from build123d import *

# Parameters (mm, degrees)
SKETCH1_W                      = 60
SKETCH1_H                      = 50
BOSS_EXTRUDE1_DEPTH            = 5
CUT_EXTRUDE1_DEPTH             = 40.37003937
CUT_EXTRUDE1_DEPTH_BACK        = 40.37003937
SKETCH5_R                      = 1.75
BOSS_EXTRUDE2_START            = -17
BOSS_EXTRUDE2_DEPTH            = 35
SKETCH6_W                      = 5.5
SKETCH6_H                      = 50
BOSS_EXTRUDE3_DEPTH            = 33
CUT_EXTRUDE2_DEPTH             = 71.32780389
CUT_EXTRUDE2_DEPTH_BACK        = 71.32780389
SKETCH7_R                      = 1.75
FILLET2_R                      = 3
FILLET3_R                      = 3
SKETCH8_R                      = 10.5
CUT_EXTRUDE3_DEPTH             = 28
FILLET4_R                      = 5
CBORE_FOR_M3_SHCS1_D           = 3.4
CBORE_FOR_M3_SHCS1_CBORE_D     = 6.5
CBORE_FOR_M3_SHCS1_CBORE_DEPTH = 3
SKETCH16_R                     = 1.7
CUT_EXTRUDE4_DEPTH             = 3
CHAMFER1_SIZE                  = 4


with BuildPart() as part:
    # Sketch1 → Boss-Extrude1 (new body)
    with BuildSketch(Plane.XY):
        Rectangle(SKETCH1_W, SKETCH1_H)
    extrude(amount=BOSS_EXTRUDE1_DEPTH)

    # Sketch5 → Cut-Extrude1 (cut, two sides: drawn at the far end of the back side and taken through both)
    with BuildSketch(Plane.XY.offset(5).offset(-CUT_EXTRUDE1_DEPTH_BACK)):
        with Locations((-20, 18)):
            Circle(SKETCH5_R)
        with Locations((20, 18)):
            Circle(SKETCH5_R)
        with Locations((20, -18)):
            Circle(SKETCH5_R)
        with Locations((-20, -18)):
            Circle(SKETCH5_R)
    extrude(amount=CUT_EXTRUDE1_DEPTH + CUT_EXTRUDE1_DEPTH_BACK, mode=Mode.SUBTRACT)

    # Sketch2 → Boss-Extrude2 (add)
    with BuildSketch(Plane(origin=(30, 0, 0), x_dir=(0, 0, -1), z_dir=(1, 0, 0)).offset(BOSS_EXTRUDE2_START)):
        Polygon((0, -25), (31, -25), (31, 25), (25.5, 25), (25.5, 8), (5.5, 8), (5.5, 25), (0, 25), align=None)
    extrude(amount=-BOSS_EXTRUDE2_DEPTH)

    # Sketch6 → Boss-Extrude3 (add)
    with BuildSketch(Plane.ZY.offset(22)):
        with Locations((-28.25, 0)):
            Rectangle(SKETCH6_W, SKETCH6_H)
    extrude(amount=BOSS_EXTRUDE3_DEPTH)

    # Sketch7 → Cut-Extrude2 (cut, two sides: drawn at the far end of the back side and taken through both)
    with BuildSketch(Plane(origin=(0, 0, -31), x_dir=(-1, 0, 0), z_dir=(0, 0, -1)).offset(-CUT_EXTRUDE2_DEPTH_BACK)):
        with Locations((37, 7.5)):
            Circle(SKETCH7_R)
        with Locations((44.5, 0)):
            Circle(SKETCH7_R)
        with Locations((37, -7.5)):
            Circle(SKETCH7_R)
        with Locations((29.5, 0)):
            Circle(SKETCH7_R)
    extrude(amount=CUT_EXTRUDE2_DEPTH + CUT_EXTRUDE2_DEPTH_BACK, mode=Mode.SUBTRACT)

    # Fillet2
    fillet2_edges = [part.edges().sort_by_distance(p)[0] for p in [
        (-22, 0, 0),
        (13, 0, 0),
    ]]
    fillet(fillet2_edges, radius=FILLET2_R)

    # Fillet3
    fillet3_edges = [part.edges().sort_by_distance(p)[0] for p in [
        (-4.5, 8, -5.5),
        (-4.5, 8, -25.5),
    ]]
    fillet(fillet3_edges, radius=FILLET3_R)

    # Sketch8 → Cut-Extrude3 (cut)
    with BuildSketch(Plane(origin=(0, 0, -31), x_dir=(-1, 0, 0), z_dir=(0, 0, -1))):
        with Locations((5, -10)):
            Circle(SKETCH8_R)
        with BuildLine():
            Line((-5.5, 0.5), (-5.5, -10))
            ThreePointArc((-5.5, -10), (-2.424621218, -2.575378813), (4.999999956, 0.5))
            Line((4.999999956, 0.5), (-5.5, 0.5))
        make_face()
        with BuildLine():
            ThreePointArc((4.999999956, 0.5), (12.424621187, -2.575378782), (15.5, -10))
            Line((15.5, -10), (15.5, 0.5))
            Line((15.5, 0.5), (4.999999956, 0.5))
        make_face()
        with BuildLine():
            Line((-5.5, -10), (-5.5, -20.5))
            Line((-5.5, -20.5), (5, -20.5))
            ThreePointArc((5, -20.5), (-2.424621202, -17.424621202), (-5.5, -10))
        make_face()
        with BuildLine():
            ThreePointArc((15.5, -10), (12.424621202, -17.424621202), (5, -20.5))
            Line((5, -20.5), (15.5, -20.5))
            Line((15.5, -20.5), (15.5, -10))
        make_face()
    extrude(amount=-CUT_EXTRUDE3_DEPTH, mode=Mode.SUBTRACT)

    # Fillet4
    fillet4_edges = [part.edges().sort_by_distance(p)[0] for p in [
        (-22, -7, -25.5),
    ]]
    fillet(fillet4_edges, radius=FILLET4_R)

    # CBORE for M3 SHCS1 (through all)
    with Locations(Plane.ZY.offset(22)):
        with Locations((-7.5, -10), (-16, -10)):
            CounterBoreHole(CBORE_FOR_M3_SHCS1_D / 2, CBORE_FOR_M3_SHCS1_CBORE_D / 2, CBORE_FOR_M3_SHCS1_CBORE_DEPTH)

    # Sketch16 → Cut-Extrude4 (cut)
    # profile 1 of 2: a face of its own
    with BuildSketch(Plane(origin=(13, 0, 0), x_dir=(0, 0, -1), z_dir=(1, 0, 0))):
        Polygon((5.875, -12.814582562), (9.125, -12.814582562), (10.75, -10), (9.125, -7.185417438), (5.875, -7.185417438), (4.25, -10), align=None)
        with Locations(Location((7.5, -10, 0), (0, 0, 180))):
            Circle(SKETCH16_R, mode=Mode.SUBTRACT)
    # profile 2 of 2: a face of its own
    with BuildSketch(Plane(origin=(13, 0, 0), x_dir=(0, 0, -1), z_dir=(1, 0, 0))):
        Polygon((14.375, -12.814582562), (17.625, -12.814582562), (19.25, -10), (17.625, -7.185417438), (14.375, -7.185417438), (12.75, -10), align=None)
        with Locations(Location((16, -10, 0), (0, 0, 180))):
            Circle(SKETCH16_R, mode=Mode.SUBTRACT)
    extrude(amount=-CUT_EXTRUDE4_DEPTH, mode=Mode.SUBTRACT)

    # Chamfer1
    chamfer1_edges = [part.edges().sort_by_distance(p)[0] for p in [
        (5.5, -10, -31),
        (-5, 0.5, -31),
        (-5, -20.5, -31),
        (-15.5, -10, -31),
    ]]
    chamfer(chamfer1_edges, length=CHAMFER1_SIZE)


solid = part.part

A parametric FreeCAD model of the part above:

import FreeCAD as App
import Part
import Sketcher
Q = App.Units.Quantity


def edges_at(feature, points):
    """Names of the edges that pass closest to the given points."""
    edges = feature.Shape.Edges
    near = lambda p: min(range(len(edges)), key=lambda i: edges[i].distToShape(Part.Vertex(*p))[0])
    return sorted({f"Edge{near(p) + 1}" for p in points})


def add_polygon(sketch, points):
    """Adds a closed chain of lines whose ends are joined by coincident constraints."""
    first, n = sketch.GeometryCount, len(points)
    for a, b in zip(points, points[1:] + points[:1]):
        sketch.addGeometry(Part.LineSegment(App.Vector(*a, 0), App.Vector(*b, 0)), False)
    for i in range(n):
        sketch.addConstraint(Sketcher.Constraint("Coincident", first + i, 2, first + (i + 1) % n, 1))

doc = App.newDocument("Part")
params = doc.addObject("Spreadsheet::Sheet", "Params")
for row, (alias, value) in enumerate([
    ("sketch1_width", "60 mm"),
    ("sketch1_height", "50 mm"),
    ("pad1_length", "5 mm"),
    ("sketch2_diameter", "3.5 mm"),
    ("sketch3_width", "50 mm"),
    ("sketch3_width2", "17 mm"),
    ("sketch3_height", "31 mm"),
    ("sketch3_height2", "20 mm"),
    ("pad2_length", "35 mm"),
    ("sketch4_width", "50 mm"),
    ("sketch4_height", "5.5 mm"),
    ("pad3_length", "33 mm"),
    ("sketch5_diameter", "3.5 mm"),
    ("fillet_radius", "3 mm"),
    ("fillet2_radius", "3 mm"),
    ("sketch6_width", "21 mm"),
    ("pocket3_length", "28 mm"),
    ("fillet3_radius", "5 mm"),
    ("sketch7_diameter", "3.4 mm"),
    ("hole_diameter", "3.4 mm"),
    ("hole_cbore_diameter", "6.5 mm"),
    ("hole_cbore_depth", "3 mm"),
    ("sketch8_diameter", "3.4 mm"),
    ("sketch8_height", "3.25 mm"),
    ("pocket4_length", "3 mm"),
    ("chamfer_size", "4 mm"),
], start=1):
    params.set(f"A{row}", alias)
    params.set(f"B{row}", "=" + value)
    params.setAlias(f"B{row}", alias)

body = doc.addObject("PartDesign::Body", "Body")

# Sketch on XY plane
sketch1 = body.newObject("Sketcher::SketchObject", "Sketch")
sketch1.AttachmentSupport = (doc.getObject("XY_Plane"), [""])
sketch1.MapMode = "FlatFace"
add_polygon(sketch1, [(-30, 25), (-30, -25), (30, -25), (30, 25)])  # lines 0-3
sketch1.addConstraint(Sketcher.Constraint("Vertical", 0))
sketch1.addConstraint(Sketcher.Constraint("Horizontal", 1))
sketch1.addConstraint(Sketcher.Constraint("Vertical", 2))
sketch1.addConstraint(Sketcher.Constraint("Horizontal", 3))
sketch1.addConstraint(Sketcher.Constraint("Symmetric", 0, 2, 2, 2, -1, 1))
sketch1.addConstraint(Sketcher.Constraint("DistanceX", 1, 1, 1, 2, 60.0))
sketch1.addConstraint(Sketcher.Constraint("DistanceY", 0, 2, 0, 1, 50.0))
sketch1.setExpression("Constraints[9]", "Params.sketch1_width")
sketch1.setExpression("Constraints[10]", "Params.sketch1_height")
pad1 = body.newObject("PartDesign::Pad", "Pad")
pad1.Profile = sketch1
pad1.setExpression("Length", "Params.pad1_length")

# Sketch on XY plane
sketch2 = body.newObject("Sketcher::SketchObject", "Sketch001")
sketch2.AttachmentSupport = (doc.getObject("XY_Plane"), [""])
sketch2.MapMode = "FlatFace"
sketch2.AttachmentOffset = App.Placement(App.Vector(0, 0, 5), App.Rotation())
sketch2.addGeometry(Part.Circle(App.Vector(-20, 18, 0), App.Vector(0, 0, 1), 1.8), False)
sketch2.addGeometry(Part.Circle(App.Vector(20, 18, 0), App.Vector(0, 0, 1), 1.8), False)
sketch2.addGeometry(Part.Circle(App.Vector(20, -18, 0), App.Vector(0, 0, 1), 1.8), False)
sketch2.addGeometry(Part.Circle(App.Vector(-20, -18, 0), App.Vector(0, 0, 1), 1.8), False)
sketch2.addConstraint(Sketcher.Constraint("Equal", 0, 1))
sketch2.addConstraint(Sketcher.Constraint("Equal", 1, 2))
sketch2.addConstraint(Sketcher.Constraint("Equal", 2, 3))
sketch2.addConstraint(Sketcher.Constraint("Symmetric", 0, 3, 2, 3, -1, 1))
sketch2.addConstraint(Sketcher.Constraint("Symmetric", 1, 3, 3, 3, -1, 1))
sketch2.addConstraint(Sketcher.Constraint("Symmetric", 0, 3, 1, 3, -2))
sketch2.addConstraint(Sketcher.Constraint("Diameter", 0, 3.5))
sketch2.addConstraint(Sketcher.Constraint("DistanceX", 0, 3, -1, 1, 20.0))
sketch2.addConstraint(Sketcher.Constraint("DistanceY", -1, 1, 0, 3, 18.0))
sketch2.setExpression("Constraints[6]", "Params.sketch2_diameter")
pocket1 = body.newObject("PartDesign::Pocket", "Pocket")
pocket1.Profile = sketch2
pocket1.Type = "ThroughAll"
pocket1.Midplane = True

# Sketch on YZ plane
sketch3 = body.newObject("Sketcher::SketchObject", "Sketch002")
sketch3.AttachmentSupport = (doc.getObject("YZ_Plane"), [""])
sketch3.MapMode = "FlatFace"
sketch3.AttachmentOffset = App.Placement(App.Vector(0, 0, 13), App.Rotation())
add_polygon(sketch3, [(-25, 0), (-25, -31), (25, -31), (25, -26), (8, -26), (8, -6), (25, -6), (25, 0)])  # lines 0-7
sketch3.addConstraint(Sketcher.Constraint("Vertical", 0))
sketch3.addConstraint(Sketcher.Constraint("Horizontal", 1))
sketch3.addConstraint(Sketcher.Constraint("Vertical", 2))
sketch3.addConstraint(Sketcher.Constraint("Horizontal", 3))
sketch3.addConstraint(Sketcher.Constraint("Vertical", 4))
sketch3.addConstraint(Sketcher.Constraint("Horizontal", 5))
sketch3.addConstraint(Sketcher.Constraint("Vertical", 6))
sketch3.addConstraint(Sketcher.Constraint("Horizontal", 7))
sketch3.addConstraint(Sketcher.Constraint("Symmetric", 6, 2, 7, 2, -1, 1))
sketch3.addConstraint(Sketcher.Constraint("Vertical", 2, 2, 5, 2))
sketch3.addConstraint(Sketcher.Constraint("Equal", 2, 6))
sketch3.addConstraint(Sketcher.Constraint("DistanceX", 1, 1, 1, 2, 50.0))
sketch3.addConstraint(Sketcher.Constraint("DistanceX", 3, 2, 3, 1, 17.0))
sketch3.addConstraint(Sketcher.Constraint("DistanceY", 0, 2, 0, 1, 31.0))
sketch3.addConstraint(Sketcher.Constraint("DistanceY", 4, 1, 4, 2, 20.0))
sketch3.setExpression("Constraints[19]", "Params.sketch3_width")
sketch3.setExpression("Constraints[20]", "Params.sketch3_width2")
sketch3.setExpression("Constraints[21]", "Params.sketch3_height")
sketch3.setExpression("Constraints[22]", "Params.sketch3_height2")
pad2 = body.newObject("PartDesign::Pad", "Pad001")
pad2.Profile = sketch3
pad2.setExpression("Length", "Params.pad2_length")
pad2.Reversed = True

# Sketch on YZ plane
sketch4 = body.newObject("Sketcher::SketchObject", "Sketch003")
sketch4.AttachmentSupport = (doc.getObject("YZ_Plane"), [""])
sketch4.MapMode = "FlatFace"
sketch4.AttachmentOffset = App.Placement(App.Vector(0, 0, -22), App.Rotation())
add_polygon(sketch4, [(25, -31), (-25, -31), (-25, -26), (25, -26)])  # lines 0-3
sketch4.addConstraint(Sketcher.Constraint("Horizontal", 0))
sketch4.addConstraint(Sketcher.Constraint("Vertical", 1))
sketch4.addConstraint(Sketcher.Constraint("Horizontal", 2))
sketch4.addConstraint(Sketcher.Constraint("Vertical", 3))
sketch4.addConstraint(Sketcher.Constraint("DistanceX", 0, 2, 0, 1, 50.0))
sketch4.addConstraint(Sketcher.Constraint("DistanceY", 1, 1, 1, 2, 5.5))
sketch4.addConstraint(Sketcher.Constraint("DistanceX", 0, 2, -1, 1, 25.0))
sketch4.addConstraint(Sketcher.Constraint("DistanceY", 0, 2, -1, 1, 31.0))
sketch4.setExpression("Constraints[8]", "Params.sketch4_width")
sketch4.setExpression("Constraints[9]", "Params.sketch4_height")
pad3 = body.newObject("PartDesign::Pad", "Pad002")
pad3.Profile = sketch4
pad3.setExpression("Length", "Params.pad3_length")
pad3.Reversed = True

# Sketch on XY plane
sketch5 = body.newObject("Sketcher::SketchObject", "Sketch004")
sketch5.AttachmentSupport = (doc.getObject("XY_Plane"), [""])
sketch5.MapMode = "FlatFace"
sketch5.AttachmentOffset = App.Placement(App.Vector(0, 0, -31), App.Rotation())
sketch5.addGeometry(Part.Circle(App.Vector(-37, 7.5, 0), App.Vector(0, 0, 1), 1.8), False)
sketch5.addGeometry(Part.Circle(App.Vector(-44.5, 0, 0), App.Vector(0, 0, 1), 1.8), False)
sketch5.addGeometry(Part.Circle(App.Vector(-37, -7.5, 0), App.Vector(0, 0, 1), 1.8), False)
sketch5.addGeometry(Part.Circle(App.Vector(-29.5, 0, 0), App.Vector(0, 0, 1), 1.8), False)
sketch5.addConstraint(Sketcher.Constraint("Equal", 0, 1))
sketch5.addConstraint(Sketcher.Constraint("Equal", 1, 2))
sketch5.addConstraint(Sketcher.Constraint("Equal", 2, 3))
sketch5.addConstraint(Sketcher.Constraint("Symmetric", 0, 3, 2, 3, -1))
sketch5.addConstraint(Sketcher.Constraint("PointOnObject", 1, 3, -1))
sketch5.addConstraint(Sketcher.Constraint("PointOnObject", 3, 3, -1))
sketch5.addConstraint(Sketcher.Constraint("Diameter", 0, 3.5))
sketch5.addConstraint(Sketcher.Constraint("DistanceX", 0, 3, -1, 1, 37.0))
sketch5.addConstraint(Sketcher.Constraint("DistanceY", 2, 3, 0, 3, 15.0))
sketch5.addConstraint(Sketcher.Constraint("DistanceX", 1, 3, 3, 3, 15.0))
sketch5.addConstraint(Sketcher.Constraint("DistanceX", 1, 3, -1, 1, 44.5))
sketch5.setExpression("Constraints[6]", "Params.sketch5_diameter")
pocket2 = body.newObject("PartDesign::Pocket", "Pocket001")
pocket2.Profile = sketch5
pocket2.Type = "ThroughAll"
pocket2.Midplane = True
doc.recompute()

fillet = body.newObject("PartDesign::Fillet", "Fillet")
fillet.Base = (pocket2, edges_at(pocket2, [(-22, 0, 0), (13, 0, 0)]))
fillet.setExpression("Radius", "Params.fillet_radius")
doc.recompute()

fillet2 = body.newObject("PartDesign::Fillet", "Fillet001")
fillet2.Base = (fillet, edges_at(fillet, [(-4.5, 8, -5.5), (-4.5, 8, -25.5)]))
fillet2.setExpression("Radius", "Params.fillet2_radius")

# Sketch on XY plane
sketch6 = body.newObject("Sketcher::SketchObject", "Sketch005")
sketch6.AttachmentSupport = (doc.getObject("XY_Plane"), [""])
sketch6.MapMode = "FlatFace"
sketch6.AttachmentOffset = App.Placement(App.Vector(0, 0, -31), App.Rotation())
add_polygon(sketch6, [(6, 0), (6, -20), (-16, -20), (-16, 0)])  # lines 0-3
sketch6.addConstraint(Sketcher.Constraint("Vertical", 0))
sketch6.addConstraint(Sketcher.Constraint("Horizontal", 1))
sketch6.addConstraint(Sketcher.Constraint("Vertical", 2))
sketch6.addConstraint(Sketcher.Constraint("Horizontal", 3))
sketch6.addConstraint(Sketcher.Constraint("Equal", 3, 0))
sketch6.addConstraint(Sketcher.Constraint("DistanceX", 1, 2, 1, 1, 21.0))
sketch6.addConstraint(Sketcher.Constraint("DistanceX", -1, 1, 0, 2, 5.5))
sketch6.addConstraint(Sketcher.Constraint("DistanceY", 0, 2, -1, 1, 20.5))
sketch6.setExpression("Constraints[9]", "Params.sketch6_width")
pocket3 = body.newObject("PartDesign::Pocket", "Pocket002")
pocket3.Profile = sketch6
pocket3.setExpression("Length", "Params.pocket3_length")
pocket3.Reversed = True
doc.recompute()

fillet3 = body.newObject("PartDesign::Fillet", "Fillet002")
fillet3.Base = (pocket3, edges_at(pocket3, [(-22, -7, -25.5)]))
fillet3.setExpression("Radius", "Params.fillet3_radius")

# Sketch on YZ plane
sketch7 = body.newObject("Sketcher::SketchObject", "Sketch006")
sketch7.AttachmentSupport = (doc.getObject("YZ_Plane"), [""])
sketch7.MapMode = "FlatFace"
sketch7.AttachmentOffset = App.Placement(App.Vector(0, 0, -22), App.Rotation())
sketch7.addGeometry(Part.Circle(App.Vector(-10, -7.5, 0), App.Vector(0, 0, 1), 1.7), False)
sketch7.addGeometry(Part.Circle(App.Vector(-10, -16, 0), App.Vector(0, 0, 1), 1.7), False)
sketch7.addConstraint(Sketcher.Constraint("Equal", 0, 1))
sketch7.addConstraint(Sketcher.Constraint("Vertical", 0, 3, 1, 3))
sketch7.addConstraint(Sketcher.Constraint("Diameter", 0, 3.4))
sketch7.addConstraint(Sketcher.Constraint("DistanceX", 0, 3, -1, 1, 10.0))
sketch7.addConstraint(Sketcher.Constraint("DistanceY", 1, 3, -1, 1, 16.0))
sketch7.addConstraint(Sketcher.Constraint("DistanceY", 0, 3, -1, 1, 7.5))
sketch7.setExpression("Constraints[2]", "Params.sketch7_diameter")
doc.recompute()
hole = body.newObject("PartDesign::Hole", "Hole")
hole.Profile = sketch7
hole.ThreadType = "None"
hole.setExpression("Diameter", "Params.hole_diameter")
hole.DepthType = "ThroughAll"
hole.HoleCutType = "Counterbore"
hole.setExpression("HoleCutDiameter", "Params.hole_cbore_diameter")
hole.setExpression("HoleCutDepth", "Params.hole_cbore_depth")
hole.Reversed = True

# Sketch on YZ plane
sketch8 = body.newObject("Sketcher::SketchObject", "Sketch007")
sketch8.AttachmentSupport = (doc.getObject("YZ_Plane"), [""])
sketch8.MapMode = "FlatFace"
sketch8.AttachmentOffset = App.Placement(App.Vector(0, 0, 13), App.Rotation())
add_polygon(sketch8, [(-12.8, -5.9), (-12.8, -9.1), (-10, -10.8), (-7.2, -9.1), (-7.2, -5.9), (-10, -4.2)])  # lines 0-5
sketch8.addGeometry(Part.Circle(App.Vector(-10, -7.5, 0), App.Vector(0, 0, 1), 1.7), False)  # 6
add_polygon(sketch8, [(-12.8, -14.4), (-12.8, -17.6), (-10, -19.2), (-7.2, -17.6), (-7.2, -14.4), (-10, -12.8)])  # lines 7-12
sketch8.addGeometry(Part.Circle(App.Vector(-10, -16, 0), App.Vector(0, 0, 1), 1.7), False)  # 13
sketch8.addConstraint(Sketcher.Constraint("Vertical", 0))
sketch8.addConstraint(Sketcher.Constraint("Vertical", 3))
sketch8.addConstraint(Sketcher.Constraint("Vertical", 7))
sketch8.addConstraint(Sketcher.Constraint("Vertical", 10))
sketch8.addConstraint(Sketcher.Constraint("Equal", 6, 13))
sketch8.addConstraint(Sketcher.Constraint("Parallel", 1, 4))
sketch8.addConstraint(Sketcher.Constraint("Parallel", 2, 5))
sketch8.addConstraint(Sketcher.Constraint("Parallel", 4, 8))
sketch8.addConstraint(Sketcher.Constraint("Parallel", 5, 9))
sketch8.addConstraint(Sketcher.Constraint("Parallel", 8, 11))
sketch8.addConstraint(Sketcher.Constraint("Parallel", 9, 12))
sketch8.addConstraint(Sketcher.Constraint("Horizontal", 0, 2, 2, 2))
sketch8.addConstraint(Sketcher.Constraint("Horizontal", 3, 2, 5, 2))
sketch8.addConstraint(Sketcher.Constraint("Horizontal", 7, 2, 9, 2))
sketch8.addConstraint(Sketcher.Constraint("Horizontal", 10, 2, 12, 2))
sketch8.addConstraint(Sketcher.Constraint("Vertical", 6, 3, 13, 3))
sketch8.addConstraint(Sketcher.Constraint("Vertical", 13, 3, 1, 2))
sketch8.addConstraint(Sketcher.Constraint("Vertical", 1, 2, 4, 2))
sketch8.addConstraint(Sketcher.Constraint("Vertical", 5, 2, 7, 2))
sketch8.addConstraint(Sketcher.Constraint("Vertical", 4, 2, 8, 2))
sketch8.addConstraint(Sketcher.Constraint("Equal", 3, 7))
sketch8.addConstraint(Sketcher.Constraint("Diameter", 6, 3.4))
sketch8.addConstraint(Sketcher.Constraint("Angle", 1, Q("-30 deg")))
sketch8.addConstraint(Sketcher.Constraint("DistanceX", 6, 3, -1, 1, 10.0))
sketch8.addConstraint(Sketcher.Constraint("DistanceY", 13, 3, -1, 1, 16.0))
sketch8.addConstraint(Sketcher.Constraint("DistanceY", 11, 2, 1, 2, 2.0))
sketch8.addConstraint(Sketcher.Constraint("DistanceY", 0, 2, 0, 1, 3.25))
sketch8.addConstraint(Sketcher.Constraint("DistanceY", 6, 3, -1, 1, 7.5))
sketch8.addConstraint(Sketcher.Constraint("DistanceY", 1, 2, 4, 2, 6.5))
sketch8.addConstraint(Sketcher.Constraint("DistanceY", 1, 2, -1, 1, 10.75))
sketch8.setExpression("Constraints[33]", "Params.sketch8_diameter")
sketch8.setExpression("Constraints[38]", "Params.sketch8_height")
pocket4 = body.newObject("PartDesign::Pocket", "Pocket003")
pocket4.Profile = sketch8
pocket4.setExpression("Length", "Params.pocket4_length")
doc.recompute()

chamfer = body.newObject("PartDesign::Chamfer", "Chamfer")
chamfer.Base = (pocket4, edges_at(pocket4, [
    (5.5, -10, -31),
    (-5, 0.5, -31),
    (-5, -20.5, -31),
    (-15.5, -10, -31),
]))
chamfer.setExpression("Size", "Params.chamfer_size")

doc.recompute()
